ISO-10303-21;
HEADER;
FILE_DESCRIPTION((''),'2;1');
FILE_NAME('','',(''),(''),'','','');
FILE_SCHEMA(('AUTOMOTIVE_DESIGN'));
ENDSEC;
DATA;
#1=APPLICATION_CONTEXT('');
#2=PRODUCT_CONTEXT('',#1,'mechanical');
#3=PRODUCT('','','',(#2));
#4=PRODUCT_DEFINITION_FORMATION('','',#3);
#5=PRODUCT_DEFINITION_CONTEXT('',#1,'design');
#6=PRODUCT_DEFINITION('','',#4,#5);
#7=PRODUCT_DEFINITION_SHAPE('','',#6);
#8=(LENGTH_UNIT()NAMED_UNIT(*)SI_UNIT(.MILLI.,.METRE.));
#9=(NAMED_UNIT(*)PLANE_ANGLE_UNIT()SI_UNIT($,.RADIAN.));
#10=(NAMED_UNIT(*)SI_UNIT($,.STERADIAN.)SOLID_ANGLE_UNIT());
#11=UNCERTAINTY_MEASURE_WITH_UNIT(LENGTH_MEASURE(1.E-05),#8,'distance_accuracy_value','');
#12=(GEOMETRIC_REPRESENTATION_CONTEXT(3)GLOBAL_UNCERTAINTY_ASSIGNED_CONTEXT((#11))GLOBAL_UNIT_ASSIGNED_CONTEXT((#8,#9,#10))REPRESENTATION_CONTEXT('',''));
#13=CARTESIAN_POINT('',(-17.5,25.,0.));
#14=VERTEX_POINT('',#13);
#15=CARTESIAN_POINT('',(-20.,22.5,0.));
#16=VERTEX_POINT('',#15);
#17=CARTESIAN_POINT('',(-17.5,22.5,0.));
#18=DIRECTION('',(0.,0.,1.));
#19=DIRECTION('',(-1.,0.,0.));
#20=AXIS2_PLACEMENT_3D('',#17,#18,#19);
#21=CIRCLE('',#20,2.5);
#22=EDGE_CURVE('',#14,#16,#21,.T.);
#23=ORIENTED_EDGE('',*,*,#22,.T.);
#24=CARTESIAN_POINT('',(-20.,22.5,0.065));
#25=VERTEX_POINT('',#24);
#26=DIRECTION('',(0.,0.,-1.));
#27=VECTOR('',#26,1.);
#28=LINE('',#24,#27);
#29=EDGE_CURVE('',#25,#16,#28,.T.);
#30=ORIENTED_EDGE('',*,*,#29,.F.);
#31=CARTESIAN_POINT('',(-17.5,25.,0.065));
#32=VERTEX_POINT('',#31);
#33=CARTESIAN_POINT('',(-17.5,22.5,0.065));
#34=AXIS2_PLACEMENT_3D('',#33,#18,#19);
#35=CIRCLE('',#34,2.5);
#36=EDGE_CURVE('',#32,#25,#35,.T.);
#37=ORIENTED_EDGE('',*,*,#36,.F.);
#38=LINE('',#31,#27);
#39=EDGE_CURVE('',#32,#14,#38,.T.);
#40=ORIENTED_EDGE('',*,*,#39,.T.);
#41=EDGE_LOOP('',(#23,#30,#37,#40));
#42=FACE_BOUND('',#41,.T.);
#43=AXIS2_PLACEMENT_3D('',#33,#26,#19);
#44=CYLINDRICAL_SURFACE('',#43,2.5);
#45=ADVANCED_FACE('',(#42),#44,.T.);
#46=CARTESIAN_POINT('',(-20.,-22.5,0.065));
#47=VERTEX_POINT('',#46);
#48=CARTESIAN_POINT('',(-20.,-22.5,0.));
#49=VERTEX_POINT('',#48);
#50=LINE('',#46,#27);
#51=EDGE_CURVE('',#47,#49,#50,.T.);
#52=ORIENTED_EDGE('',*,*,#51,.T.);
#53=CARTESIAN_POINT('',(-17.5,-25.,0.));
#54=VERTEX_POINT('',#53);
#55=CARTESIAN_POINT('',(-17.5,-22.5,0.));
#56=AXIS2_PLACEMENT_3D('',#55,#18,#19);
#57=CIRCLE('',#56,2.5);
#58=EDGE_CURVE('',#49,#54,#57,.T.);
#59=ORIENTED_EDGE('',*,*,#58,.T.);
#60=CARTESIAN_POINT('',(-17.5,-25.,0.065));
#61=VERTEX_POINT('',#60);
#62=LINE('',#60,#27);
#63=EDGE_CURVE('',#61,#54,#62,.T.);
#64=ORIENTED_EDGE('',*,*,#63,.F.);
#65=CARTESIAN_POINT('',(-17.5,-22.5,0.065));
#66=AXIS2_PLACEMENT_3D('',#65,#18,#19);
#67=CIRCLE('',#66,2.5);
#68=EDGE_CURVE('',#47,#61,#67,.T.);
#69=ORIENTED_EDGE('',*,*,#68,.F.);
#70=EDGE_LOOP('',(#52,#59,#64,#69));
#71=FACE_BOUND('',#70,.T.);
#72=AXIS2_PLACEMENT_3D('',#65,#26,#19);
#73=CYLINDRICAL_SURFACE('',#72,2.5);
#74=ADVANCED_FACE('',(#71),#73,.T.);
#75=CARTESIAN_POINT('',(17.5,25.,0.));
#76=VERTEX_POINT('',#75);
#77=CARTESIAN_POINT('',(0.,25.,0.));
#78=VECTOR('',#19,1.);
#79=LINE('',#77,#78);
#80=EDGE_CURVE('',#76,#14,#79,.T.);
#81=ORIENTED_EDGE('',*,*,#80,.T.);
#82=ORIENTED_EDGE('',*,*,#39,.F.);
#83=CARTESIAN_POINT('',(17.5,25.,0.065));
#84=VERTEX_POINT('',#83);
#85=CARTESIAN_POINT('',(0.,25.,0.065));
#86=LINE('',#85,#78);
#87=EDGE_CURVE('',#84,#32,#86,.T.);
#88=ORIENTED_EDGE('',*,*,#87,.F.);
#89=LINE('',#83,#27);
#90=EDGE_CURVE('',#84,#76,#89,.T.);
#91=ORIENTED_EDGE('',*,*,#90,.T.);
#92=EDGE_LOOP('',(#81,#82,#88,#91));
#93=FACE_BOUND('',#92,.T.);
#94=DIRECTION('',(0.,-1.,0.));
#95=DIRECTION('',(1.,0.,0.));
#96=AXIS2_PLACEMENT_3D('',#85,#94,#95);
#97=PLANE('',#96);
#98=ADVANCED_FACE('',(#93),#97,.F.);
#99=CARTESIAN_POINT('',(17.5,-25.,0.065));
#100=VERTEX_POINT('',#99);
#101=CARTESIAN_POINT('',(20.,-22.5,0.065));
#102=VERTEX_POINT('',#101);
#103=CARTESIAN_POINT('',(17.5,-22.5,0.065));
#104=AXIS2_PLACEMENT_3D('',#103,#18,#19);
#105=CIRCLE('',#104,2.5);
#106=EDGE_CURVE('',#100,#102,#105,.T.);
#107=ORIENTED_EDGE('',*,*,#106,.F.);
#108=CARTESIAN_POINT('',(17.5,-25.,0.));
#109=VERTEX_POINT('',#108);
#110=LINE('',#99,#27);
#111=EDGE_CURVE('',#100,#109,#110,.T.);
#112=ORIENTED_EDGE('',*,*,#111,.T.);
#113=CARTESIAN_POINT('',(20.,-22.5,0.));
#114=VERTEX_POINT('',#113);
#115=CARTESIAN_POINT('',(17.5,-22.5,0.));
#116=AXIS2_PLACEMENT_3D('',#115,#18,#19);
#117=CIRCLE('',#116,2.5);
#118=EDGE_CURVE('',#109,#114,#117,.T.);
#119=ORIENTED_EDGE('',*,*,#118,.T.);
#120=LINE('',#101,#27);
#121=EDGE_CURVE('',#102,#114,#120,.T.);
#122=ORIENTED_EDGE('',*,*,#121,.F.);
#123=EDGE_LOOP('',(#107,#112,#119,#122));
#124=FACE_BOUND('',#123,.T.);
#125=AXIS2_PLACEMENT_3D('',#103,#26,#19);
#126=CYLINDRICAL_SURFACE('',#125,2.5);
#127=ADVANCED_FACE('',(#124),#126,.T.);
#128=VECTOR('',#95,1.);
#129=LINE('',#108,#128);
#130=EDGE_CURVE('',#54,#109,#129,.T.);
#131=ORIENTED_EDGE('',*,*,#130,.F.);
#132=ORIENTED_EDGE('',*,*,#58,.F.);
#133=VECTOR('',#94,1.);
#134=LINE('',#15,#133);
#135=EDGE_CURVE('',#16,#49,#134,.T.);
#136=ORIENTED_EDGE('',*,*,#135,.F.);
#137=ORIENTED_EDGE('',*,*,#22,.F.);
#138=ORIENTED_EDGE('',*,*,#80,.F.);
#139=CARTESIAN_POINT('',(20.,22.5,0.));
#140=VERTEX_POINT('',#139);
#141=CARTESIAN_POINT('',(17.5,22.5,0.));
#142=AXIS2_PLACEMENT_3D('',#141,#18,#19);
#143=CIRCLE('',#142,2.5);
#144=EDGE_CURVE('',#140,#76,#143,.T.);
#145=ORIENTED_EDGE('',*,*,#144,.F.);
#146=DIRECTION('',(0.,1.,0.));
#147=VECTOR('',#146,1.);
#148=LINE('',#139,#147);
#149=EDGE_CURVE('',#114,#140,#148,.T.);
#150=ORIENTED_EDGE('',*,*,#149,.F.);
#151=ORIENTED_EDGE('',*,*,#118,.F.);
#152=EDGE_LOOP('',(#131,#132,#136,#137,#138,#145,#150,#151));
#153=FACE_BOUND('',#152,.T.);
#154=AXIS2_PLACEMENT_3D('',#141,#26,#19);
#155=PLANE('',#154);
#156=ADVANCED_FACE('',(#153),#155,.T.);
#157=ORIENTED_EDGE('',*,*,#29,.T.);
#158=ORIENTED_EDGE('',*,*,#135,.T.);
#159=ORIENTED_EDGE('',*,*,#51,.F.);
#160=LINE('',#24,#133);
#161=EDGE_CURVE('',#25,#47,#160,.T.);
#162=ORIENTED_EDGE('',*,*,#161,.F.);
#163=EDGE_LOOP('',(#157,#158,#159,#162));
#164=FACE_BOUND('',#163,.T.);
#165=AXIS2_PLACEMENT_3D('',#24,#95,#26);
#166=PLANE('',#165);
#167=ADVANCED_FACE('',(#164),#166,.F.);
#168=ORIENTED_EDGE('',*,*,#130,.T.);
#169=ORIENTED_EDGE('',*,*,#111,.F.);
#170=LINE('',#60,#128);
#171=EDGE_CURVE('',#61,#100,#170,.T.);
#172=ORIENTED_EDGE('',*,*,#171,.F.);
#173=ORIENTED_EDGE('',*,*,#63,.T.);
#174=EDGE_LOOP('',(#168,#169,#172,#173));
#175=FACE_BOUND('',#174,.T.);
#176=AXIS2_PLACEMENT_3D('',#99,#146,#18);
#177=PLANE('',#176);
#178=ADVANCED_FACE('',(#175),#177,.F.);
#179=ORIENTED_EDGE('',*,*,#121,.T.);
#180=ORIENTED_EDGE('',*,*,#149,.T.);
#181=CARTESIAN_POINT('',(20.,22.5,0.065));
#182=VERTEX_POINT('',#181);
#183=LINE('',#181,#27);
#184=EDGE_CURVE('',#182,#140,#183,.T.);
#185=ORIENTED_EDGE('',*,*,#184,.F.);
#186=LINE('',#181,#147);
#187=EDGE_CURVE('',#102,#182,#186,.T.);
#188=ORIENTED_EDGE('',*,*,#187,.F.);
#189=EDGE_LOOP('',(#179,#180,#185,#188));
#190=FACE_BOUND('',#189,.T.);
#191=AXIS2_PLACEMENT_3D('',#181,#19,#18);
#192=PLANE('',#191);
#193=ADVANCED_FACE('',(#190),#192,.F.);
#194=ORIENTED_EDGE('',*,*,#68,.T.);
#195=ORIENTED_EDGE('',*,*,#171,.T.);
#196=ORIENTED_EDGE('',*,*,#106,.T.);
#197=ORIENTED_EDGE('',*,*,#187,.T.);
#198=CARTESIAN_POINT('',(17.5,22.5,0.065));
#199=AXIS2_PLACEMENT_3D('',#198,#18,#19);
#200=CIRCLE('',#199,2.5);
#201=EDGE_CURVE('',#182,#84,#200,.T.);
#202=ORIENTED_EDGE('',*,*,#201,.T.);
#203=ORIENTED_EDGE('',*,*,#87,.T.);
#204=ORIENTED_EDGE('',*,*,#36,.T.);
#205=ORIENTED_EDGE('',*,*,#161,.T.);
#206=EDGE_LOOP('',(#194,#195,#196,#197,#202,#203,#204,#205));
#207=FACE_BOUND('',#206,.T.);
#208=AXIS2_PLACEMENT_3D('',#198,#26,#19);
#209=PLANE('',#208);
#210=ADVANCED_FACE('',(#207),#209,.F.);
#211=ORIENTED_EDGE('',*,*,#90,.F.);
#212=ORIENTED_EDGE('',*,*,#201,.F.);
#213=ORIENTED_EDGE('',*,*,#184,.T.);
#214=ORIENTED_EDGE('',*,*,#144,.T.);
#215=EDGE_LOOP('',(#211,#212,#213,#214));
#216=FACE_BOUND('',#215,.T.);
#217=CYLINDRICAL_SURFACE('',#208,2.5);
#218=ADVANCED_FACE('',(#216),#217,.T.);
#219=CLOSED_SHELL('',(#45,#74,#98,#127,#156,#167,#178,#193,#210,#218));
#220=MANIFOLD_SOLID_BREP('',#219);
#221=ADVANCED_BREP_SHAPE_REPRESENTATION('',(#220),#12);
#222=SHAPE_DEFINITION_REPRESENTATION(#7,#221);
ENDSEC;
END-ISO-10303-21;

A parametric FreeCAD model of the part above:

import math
import FreeCAD as App
import Part
import Sketcher
from FreeCAD import Vector
Q = App.Units.Quantity

doc = App.newDocument("Part")
body = doc.addObject("PartDesign::Body", "Body")

sketch1 = body.newObject("Sketcher::SketchObject", "Sketch")
sketch1.AttachmentSupport = (doc.getObject("XY_Plane"), [""])
sketch1.MapMode = "FlatFace"
sketch1.addGeometry([
    Part.ArcOfCircle(Part.Circle(Vector(17.5, -22.5, 0), Vector(0, 0, 1), 2.5), math.radians(-90), math.radians(0)),
    Part.LineSegment(Vector(20, -22.5, 0), Vector(20, 22.5, 0)),
    Part.ArcOfCircle(Part.Circle(Vector(17.5, 22.5, 0), Vector(0, 0, 1), 2.5), math.radians(0), math.radians(90)),
    Part.LineSegment(Vector(17.5, 25, 0), Vector(-17.5, 25, 0)),
    Part.ArcOfCircle(Part.Circle(Vector(-17.5, 22.5, 0), Vector(0, 0, 1), 2.5), math.radians(90), math.radians(180)),
    Part.LineSegment(Vector(-20, 22.5, 0), Vector(-20, -22.5, 0)),
    Part.ArcOfCircle(Part.Circle(Vector(-17.5, -22.5, 0), Vector(0, 0, 1), 2.5), math.radians(180), math.radians(270)),
    Part.LineSegment(Vector(-17.5, -25, 0), Vector(17.5, -25, 0)),
], False)
sketch1.addConstraint([
    Sketcher.Constraint("Tangent", 0, 2, 1, 1),
    Sketcher.Constraint("Tangent", 1, 2, 2, 1),
    Sketcher.Constraint("Tangent", 2, 2, 3, 1),
    Sketcher.Constraint("Tangent", 3, 2, 4, 1),
    Sketcher.Constraint("Tangent", 4, 2, 5, 1),
    Sketcher.Constraint("Tangent", 5, 2, 6, 1),
    Sketcher.Constraint("Tangent", 6, 2, 7, 1),
    Sketcher.Constraint("Tangent", 7, 2, 0, 1),
    Sketcher.Constraint("Vertical", 1),
    Sketcher.Constraint("Horizontal", 3),
    Sketcher.Constraint("Vertical", 5),
    Sketcher.Constraint("Horizontal", 7),
    Sketcher.Constraint("Equal", 0, 2),
    Sketcher.Constraint("Equal", 2, 4),
    Sketcher.Constraint("Equal", 4, 6),
    Sketcher.Constraint("Symmetric", 0, 3, 4, 3, -1, 1),
    Sketcher.Constraint("Radius", 0, Q("2.5 mm")),
    Sketcher.Constraint("DistanceX", 3, 2, 3, 1, Q("35 mm")),
    Sketcher.Constraint("DistanceY", 1, 1, 1, 2, Q("45 mm")),
])
pad1 = body.newObject("PartDesign::Pad", "Pad")
pad1.Profile = sketch1
pad1.Length = 0.065

doc.recompute()
